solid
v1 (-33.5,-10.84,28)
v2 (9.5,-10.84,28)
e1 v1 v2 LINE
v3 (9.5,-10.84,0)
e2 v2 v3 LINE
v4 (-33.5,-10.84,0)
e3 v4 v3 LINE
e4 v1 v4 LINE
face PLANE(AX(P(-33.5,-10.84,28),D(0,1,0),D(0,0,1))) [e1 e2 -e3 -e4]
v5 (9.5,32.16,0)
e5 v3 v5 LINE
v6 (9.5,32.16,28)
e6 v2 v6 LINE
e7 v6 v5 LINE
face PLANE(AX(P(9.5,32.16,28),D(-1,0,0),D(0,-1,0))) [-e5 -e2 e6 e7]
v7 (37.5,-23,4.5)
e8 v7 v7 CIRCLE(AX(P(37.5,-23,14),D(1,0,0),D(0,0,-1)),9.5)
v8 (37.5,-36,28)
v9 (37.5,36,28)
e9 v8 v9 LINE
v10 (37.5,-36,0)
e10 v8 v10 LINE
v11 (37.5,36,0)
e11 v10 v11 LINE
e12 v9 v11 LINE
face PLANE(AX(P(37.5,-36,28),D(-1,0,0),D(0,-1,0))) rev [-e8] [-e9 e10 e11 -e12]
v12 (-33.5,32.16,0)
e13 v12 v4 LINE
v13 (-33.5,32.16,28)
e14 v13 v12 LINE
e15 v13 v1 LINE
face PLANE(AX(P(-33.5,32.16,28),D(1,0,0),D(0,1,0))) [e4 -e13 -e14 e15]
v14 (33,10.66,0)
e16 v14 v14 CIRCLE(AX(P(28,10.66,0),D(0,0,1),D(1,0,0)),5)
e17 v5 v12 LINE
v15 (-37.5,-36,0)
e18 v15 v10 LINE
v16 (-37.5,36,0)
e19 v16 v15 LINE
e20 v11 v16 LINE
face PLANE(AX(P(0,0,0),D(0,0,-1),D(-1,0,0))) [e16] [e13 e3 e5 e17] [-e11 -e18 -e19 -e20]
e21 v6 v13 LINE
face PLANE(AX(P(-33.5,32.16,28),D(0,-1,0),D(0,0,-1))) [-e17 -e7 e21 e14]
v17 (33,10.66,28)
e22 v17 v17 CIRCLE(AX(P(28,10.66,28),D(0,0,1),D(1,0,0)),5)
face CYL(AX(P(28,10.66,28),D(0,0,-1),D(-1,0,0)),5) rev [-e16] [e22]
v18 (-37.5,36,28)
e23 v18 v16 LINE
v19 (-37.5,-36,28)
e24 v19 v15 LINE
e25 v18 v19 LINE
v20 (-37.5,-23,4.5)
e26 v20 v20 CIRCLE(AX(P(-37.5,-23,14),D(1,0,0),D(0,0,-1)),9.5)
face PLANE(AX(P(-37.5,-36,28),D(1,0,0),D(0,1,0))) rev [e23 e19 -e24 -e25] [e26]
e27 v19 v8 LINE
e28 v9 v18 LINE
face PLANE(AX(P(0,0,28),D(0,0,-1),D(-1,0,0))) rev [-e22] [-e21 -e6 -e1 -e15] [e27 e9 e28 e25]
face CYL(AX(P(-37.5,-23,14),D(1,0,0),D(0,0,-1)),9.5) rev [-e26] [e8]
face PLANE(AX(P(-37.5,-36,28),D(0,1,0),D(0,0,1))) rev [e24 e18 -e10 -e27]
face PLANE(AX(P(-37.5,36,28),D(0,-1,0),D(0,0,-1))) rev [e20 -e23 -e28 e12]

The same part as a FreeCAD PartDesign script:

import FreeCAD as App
import Part
import Sketcher
from FreeCAD import Vector
Q = App.Units.Quantity

doc = App.newDocument("Part")
params = doc.addObject("Spreadsheet::Sheet", "Params")
for row, (alias, value) in enumerate([
    ("sketch1_diameter", "10 mm"),
    ("sketch1_width", "75 mm"),
    ("sketch1_width2", "43 mm"),
    ("sketch1_height", "72 mm"),
    ("pad1_length", "28 mm"),
    ("sketch2_diameter", "19 mm"),
], start=1):
    params.set(f"A{row}", alias)
    params.set(f"B{row}", "=" + value)
    params.setAlias(f"B{row}", alias)

body = doc.addObject("PartDesign::Body", "Body")

sketch1 = body.newObject("Sketcher::SketchObject", "Sketch")
sketch1.AttachmentSupport = (doc.getObject("XY_Plane"), [""])
sketch1.MapMode = "FlatFace"
sketch1.addGeometry(Part.LineSegment(Vector(-38, 36, 0), Vector(-38, -36, 0)), False)
sketch1.addGeometry(Part.LineSegment(Vector(-38, -36, 0), Vector(38, -36, 0)), False)
sketch1.addGeometry(Part.LineSegment(Vector(38, -36, 0), Vector(38, 36, 0)), False)
sketch1.addGeometry(Part.LineSegment(Vector(38, 36, 0), Vector(-38, 36, 0)), False)
sketch1.addGeometry(Part.LineSegment(Vector(10, -11, 0), Vector(-34, -11, 0)), False)
sketch1.addGeometry(Part.LineSegment(Vector(-34, -11, 0), Vector(-34, 32, 0)), False)
sketch1.addGeometry(Part.LineSegment(Vector(-34, 32, 0), Vector(10, 32, 0)), False)
sketch1.addGeometry(Part.LineSegment(Vector(10, 32, 0), Vector(10, -11, 0)), False)
sketch1.addGeometry(Part.Circle(Vector(28, 11, 0), Vector(0, 0, 1), 5), False)
sketch1.addConstraint(Sketcher.Constraint("Coincident", 0, 2, 1, 1))
sketch1.addConstraint(Sketcher.Constraint("Coincident", 1, 2, 2, 1))
sketch1.addConstraint(Sketcher.Constraint("Coincident", 2, 2, 3, 1))
sketch1.addConstraint(Sketcher.Constraint("Coincident", 3, 2, 0, 1))
sketch1.addConstraint(Sketcher.Constraint("Coincident", 4, 2, 5, 1))
sketch1.addConstraint(Sketcher.Constraint("Coincident", 5, 2, 6, 1))
sketch1.addConstraint(Sketcher.Constraint("Coincident", 6, 2, 7, 1))
sketch1.addConstraint(Sketcher.Constraint("Coincident", 7, 2, 4, 1))
sketch1.addConstraint(Sketcher.Constraint("Vertical", 0))
sketch1.addConstraint(Sketcher.Constraint("Horizontal", 1))
sketch1.addConstraint(Sketcher.Constraint("Vertical", 2))
sketch1.addConstraint(Sketcher.Constraint("Horizontal", 3))
sketch1.addConstraint(Sketcher.Constraint("Horizontal", 4))
sketch1.addConstraint(Sketcher.Constraint("Vertical", 5))
sketch1.addConstraint(Sketcher.Constraint("Horizontal", 6))
sketch1.addConstraint(Sketcher.Constraint("Vertical", 7))
sketch1.addConstraint(Sketcher.Constraint("Symmetric", 0, 2, 2, 2, -1, 1))
sketch1.addConstraint(Sketcher.Constraint("Equal", 6, 5))
sketch1.addConstraint(Sketcher.Constraint("Diameter", 8, Q("10 mm")))
sketch1.addConstraint(Sketcher.Constraint("DistanceX", 1, 1, 1, 2, Q("75 mm")))
sketch1.addConstraint(Sketcher.Constraint("DistanceX", 4, 2, 4, 1, Q("43 mm")))
sketch1.addConstraint(Sketcher.Constraint("DistanceY", 0, 2, 0, 1, Q("72 mm")))
sketch1.addConstraint(Sketcher.Constraint("DistanceX", -1, 1, 8, 3, Q("28 mm")))
sketch1.addConstraint(Sketcher.Constraint("DistanceX", 0, 2, 4, 2, Q("4 mm")))
sketch1.addConstraint(Sketcher.Constraint("DistanceY", 4, 2, 8, 3, Q("21.5 mm")))
sketch1.addConstraint(Sketcher.Constraint("DistanceY", -1, 1, 8, 3, Q("10.66 mm")))
sketch1.setExpression("Constraints[18]", "Params.sketch1_diameter")
sketch1.setExpression("Constraints[19]", "Params.sketch1_width")
sketch1.setExpression("Constraints[20]", "Params.sketch1_width2")
sketch1.setExpression("Constraints[21]", "Params.sketch1_height")
pad1 = body.newObject("PartDesign::Pad", "Pad")
pad1.Profile = sketch1
pad1.setExpression("Length", "Params.pad1_length")

sketch2 = body.newObject("Sketcher::SketchObject", "Sketch001")
sketch2.AttachmentSupport = (doc.getObject("YZ_Plane"), [""])
sketch2.MapMode = "FlatFace"
sketch2.AttachmentOffset = App.Placement(Vector(0, 0, 37.5), App.Rotation())
sketch2.addGeometry(Part.Circle(Vector(-23, 14, 0), Vector(0, 0, 1), 10), False)
sketch2.addConstraint(Sketcher.Constraint("Diameter", 0, Q("19 mm")))
sketch2.addConstraint(Sketcher.Constraint("DistanceX", 0, 3, -1, 1, Q("23 mm")))
sketch2.addConstraint(Sketcher.Constraint("DistanceY", -1, 1, 0, 3, Q("14 mm")))
sketch2.setExpression("Constraints[0]", "Params.sketch2_diameter")
pocket1 = body.newObject("PartDesign::Pocket", "Pocket")
pocket1.Profile = sketch2
pocket1.Type = "ThroughAll"

doc.recompute()
